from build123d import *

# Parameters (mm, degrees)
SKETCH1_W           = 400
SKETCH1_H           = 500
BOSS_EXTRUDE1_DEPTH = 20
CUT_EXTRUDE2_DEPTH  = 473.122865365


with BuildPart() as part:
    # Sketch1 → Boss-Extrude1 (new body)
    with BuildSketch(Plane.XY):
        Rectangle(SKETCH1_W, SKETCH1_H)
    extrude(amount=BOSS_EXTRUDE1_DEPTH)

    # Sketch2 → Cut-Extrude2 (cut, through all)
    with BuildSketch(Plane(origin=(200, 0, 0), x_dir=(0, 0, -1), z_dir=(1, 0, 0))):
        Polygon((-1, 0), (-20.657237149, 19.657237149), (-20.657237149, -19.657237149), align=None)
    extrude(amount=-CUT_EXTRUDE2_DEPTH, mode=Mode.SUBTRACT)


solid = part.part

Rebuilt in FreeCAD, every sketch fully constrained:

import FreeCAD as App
import Part
import Sketcher
Q = App.Units.Quantity

doc = App.newDocument("Part")
body = doc.addObject("PartDesign::Body", "Body")

sketch1 = body.newObject("Sketcher::SketchObject", "Sketch")
sketch1.AttachmentSupport = (doc.getObject("XY_Plane"), [""])
sketch1.MapMode = "FlatFace"
sketch1.addGeometry(Part.LineSegment(App.Vector(-200, 250, 0), App.Vector(-200, -250, 0)), False)
sketch1.addGeometry(Part.LineSegment(App.Vector(-200, -250, 0), App.Vector(200, -250, 0)), False)
sketch1.addGeometry(Part.LineSegment(App.Vector(200, -250, 0), App.Vector(200, 250, 0)), False)
sketch1.addGeometry(Part.LineSegment(App.Vector(200, 250, 0), App.Vector(-200, 250, 0)), False)
sketch1.addConstraint(Sketcher.Constraint("Coincident", 0, 2, 1, 1))
sketch1.addConstraint(Sketcher.Constraint("Coincident", 1, 2, 2, 1))
sketch1.addConstraint(Sketcher.Constraint("Coincident", 2, 2, 3, 1))
sketch1.addConstraint(Sketcher.Constraint("Coincident", 3, 2, 0, 1))
sketch1.addConstraint(Sketcher.Constraint("Vertical", 0))
sketch1.addConstraint(Sketcher.Constraint("Horizontal", 1))
sketch1.addConstraint(Sketcher.Constraint("Vertical", 2))
sketch1.addConstraint(Sketcher.Constraint("Horizontal", 3))
sketch1.addConstraint(Sketcher.Constraint("Symmetric", 0, 2, 2, 2, -1, 1))
sketch1.addConstraint(Sketcher.Constraint("DistanceX", 1, 1, 1, 2, Q("400 mm")))
sketch1.addConstraint(Sketcher.Constraint("DistanceY", 0, 2, 0, 1, Q("500 mm")))
pad1 = body.newObject("PartDesign::Pad", "Pad")
pad1.Profile = sketch1
pad1.Length = 20

sketch2 = body.newObject("Sketcher::SketchObject", "Sketch001")
sketch2.AttachmentSupport = (doc.getObject("YZ_Plane"), [""])
sketch2.MapMode = "FlatFace"
sketch2.AttachmentOffset = App.Placement(App.Vector(0, 0, 200), App.Rotation())
sketch2.addGeometry(Part.LineSegment(App.Vector(0, 1, 0), App.Vector(19.657237, 20.657237, 0)), False)
sketch2.addGeometry(Part.LineSegment(App.Vector(19.657237, 20.657237, 0), App.Vector(-19.657237, 20.657237, 0)), False)
sketch2.addGeometry(Part.LineSegment(App.Vector(-19.657237, 20.657237, 0), App.Vector(0, 1, 0)), False)
sketch2.addConstraint(Sketcher.Constraint("Coincident", 0, 2, 1, 1))
sketch2.addConstraint(Sketcher.Constraint("Coincident", 1, 2, 2, 1))
sketch2.addConstraint(Sketcher.Constraint("Coincident", 2, 2, 0, 1))
sketch2.addConstraint(Sketcher.Constraint("Horizontal", 1))
sketch2.addConstraint(Sketcher.Constraint("PointOnObject", 2, 2, -2))
sketch2.addConstraint(Sketcher.Constraint("Perpendicular", 0, 2))
sketch2.addConstraint(Sketcher.Constraint("Equal", 0, 2))
sketch2.addConstraint(Sketcher.Constraint("DistanceY", -1, 1, 2, 2, Q("1 mm")))
sketch2.addConstraint(Sketcher.Constraint("Distance", 0, Q("27.799531 mm")))
pocket1 = body.newObject("PartDesign::Pocket", "Pocket")
pocket1.Profile = sketch2
pocket1.Type = "ThroughAll"

doc.recompute()
